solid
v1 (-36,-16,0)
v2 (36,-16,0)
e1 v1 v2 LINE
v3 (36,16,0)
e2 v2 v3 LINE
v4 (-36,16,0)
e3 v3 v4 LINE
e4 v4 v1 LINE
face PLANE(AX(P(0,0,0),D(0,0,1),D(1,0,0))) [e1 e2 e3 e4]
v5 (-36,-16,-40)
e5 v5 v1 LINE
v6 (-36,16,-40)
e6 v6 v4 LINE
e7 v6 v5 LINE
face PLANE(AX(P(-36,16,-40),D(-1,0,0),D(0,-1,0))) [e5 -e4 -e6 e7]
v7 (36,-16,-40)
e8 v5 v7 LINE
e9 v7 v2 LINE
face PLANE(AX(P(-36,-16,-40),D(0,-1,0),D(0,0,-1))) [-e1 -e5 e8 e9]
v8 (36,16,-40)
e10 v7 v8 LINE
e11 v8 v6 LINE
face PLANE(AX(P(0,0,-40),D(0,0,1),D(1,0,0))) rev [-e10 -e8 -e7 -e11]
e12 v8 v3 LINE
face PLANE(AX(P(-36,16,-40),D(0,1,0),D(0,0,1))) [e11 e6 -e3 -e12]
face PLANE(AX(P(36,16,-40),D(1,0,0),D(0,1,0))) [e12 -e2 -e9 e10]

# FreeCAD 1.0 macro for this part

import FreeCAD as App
import Part
import Sketcher

V = App.Vector

doc = App.newDocument("Part")
body = doc.addObject("PartDesign::Body", "Body")

sketch1 = body.newObject("Sketcher::SketchObject", "Sketch")
sketch1.AttachmentSupport = (doc.getObject("XY_Plane"), [""])
sketch1.MapMode = "FlatFace"
sketch1.addGeometry(Part.LineSegment(V(-36, 16, 0), V(-36, -16, 0)), False)
sketch1.addGeometry(Part.LineSegment(V(-36, -16, 0), V(36, -16, 0)), False)
sketch1.addGeometry(Part.LineSegment(V(36, -16, 0), V(36, 16, 0)), False)
sketch1.addGeometry(Part.LineSegment(V(36, 16, 0), V(-36, 16, 0)), False)
sketch1.addConstraint(Sketcher.Constraint("Coincident", 0, 2, 1, 1))
sketch1.addConstraint(Sketcher.Constraint("Coincident", 1, 2, 2, 1))
sketch1.addConstraint(Sketcher.Constraint("Coincident", 2, 2, 3, 1))
sketch1.addConstraint(Sketcher.Constraint("Coincident", 3, 2, 0, 1))
sketch1.addConstraint(Sketcher.Constraint("Vertical", 0))
sketch1.addConstraint(Sketcher.Constraint("Horizontal", 1))
sketch1.addConstraint(Sketcher.Constraint("Vertical", 2))
sketch1.addConstraint(Sketcher.Constraint("Horizontal", 3))
sketch1.addConstraint(Sketcher.Constraint("Symmetric", 0, 2, 2, 2, -1, 1))
sketch1.addConstraint(Sketcher.Constraint("DistanceX", 1, 1, 1, 2, 72.0))
sketch1.addConstraint(Sketcher.Constraint("DistanceY", 0, 2, 0, 1, 32.0))
pad1 = body.newObject("PartDesign::Pad", "Pad")
pad1.Profile = sketch1
pad1.Length = 40
pad1.Reversed = True

doc.recompute()
